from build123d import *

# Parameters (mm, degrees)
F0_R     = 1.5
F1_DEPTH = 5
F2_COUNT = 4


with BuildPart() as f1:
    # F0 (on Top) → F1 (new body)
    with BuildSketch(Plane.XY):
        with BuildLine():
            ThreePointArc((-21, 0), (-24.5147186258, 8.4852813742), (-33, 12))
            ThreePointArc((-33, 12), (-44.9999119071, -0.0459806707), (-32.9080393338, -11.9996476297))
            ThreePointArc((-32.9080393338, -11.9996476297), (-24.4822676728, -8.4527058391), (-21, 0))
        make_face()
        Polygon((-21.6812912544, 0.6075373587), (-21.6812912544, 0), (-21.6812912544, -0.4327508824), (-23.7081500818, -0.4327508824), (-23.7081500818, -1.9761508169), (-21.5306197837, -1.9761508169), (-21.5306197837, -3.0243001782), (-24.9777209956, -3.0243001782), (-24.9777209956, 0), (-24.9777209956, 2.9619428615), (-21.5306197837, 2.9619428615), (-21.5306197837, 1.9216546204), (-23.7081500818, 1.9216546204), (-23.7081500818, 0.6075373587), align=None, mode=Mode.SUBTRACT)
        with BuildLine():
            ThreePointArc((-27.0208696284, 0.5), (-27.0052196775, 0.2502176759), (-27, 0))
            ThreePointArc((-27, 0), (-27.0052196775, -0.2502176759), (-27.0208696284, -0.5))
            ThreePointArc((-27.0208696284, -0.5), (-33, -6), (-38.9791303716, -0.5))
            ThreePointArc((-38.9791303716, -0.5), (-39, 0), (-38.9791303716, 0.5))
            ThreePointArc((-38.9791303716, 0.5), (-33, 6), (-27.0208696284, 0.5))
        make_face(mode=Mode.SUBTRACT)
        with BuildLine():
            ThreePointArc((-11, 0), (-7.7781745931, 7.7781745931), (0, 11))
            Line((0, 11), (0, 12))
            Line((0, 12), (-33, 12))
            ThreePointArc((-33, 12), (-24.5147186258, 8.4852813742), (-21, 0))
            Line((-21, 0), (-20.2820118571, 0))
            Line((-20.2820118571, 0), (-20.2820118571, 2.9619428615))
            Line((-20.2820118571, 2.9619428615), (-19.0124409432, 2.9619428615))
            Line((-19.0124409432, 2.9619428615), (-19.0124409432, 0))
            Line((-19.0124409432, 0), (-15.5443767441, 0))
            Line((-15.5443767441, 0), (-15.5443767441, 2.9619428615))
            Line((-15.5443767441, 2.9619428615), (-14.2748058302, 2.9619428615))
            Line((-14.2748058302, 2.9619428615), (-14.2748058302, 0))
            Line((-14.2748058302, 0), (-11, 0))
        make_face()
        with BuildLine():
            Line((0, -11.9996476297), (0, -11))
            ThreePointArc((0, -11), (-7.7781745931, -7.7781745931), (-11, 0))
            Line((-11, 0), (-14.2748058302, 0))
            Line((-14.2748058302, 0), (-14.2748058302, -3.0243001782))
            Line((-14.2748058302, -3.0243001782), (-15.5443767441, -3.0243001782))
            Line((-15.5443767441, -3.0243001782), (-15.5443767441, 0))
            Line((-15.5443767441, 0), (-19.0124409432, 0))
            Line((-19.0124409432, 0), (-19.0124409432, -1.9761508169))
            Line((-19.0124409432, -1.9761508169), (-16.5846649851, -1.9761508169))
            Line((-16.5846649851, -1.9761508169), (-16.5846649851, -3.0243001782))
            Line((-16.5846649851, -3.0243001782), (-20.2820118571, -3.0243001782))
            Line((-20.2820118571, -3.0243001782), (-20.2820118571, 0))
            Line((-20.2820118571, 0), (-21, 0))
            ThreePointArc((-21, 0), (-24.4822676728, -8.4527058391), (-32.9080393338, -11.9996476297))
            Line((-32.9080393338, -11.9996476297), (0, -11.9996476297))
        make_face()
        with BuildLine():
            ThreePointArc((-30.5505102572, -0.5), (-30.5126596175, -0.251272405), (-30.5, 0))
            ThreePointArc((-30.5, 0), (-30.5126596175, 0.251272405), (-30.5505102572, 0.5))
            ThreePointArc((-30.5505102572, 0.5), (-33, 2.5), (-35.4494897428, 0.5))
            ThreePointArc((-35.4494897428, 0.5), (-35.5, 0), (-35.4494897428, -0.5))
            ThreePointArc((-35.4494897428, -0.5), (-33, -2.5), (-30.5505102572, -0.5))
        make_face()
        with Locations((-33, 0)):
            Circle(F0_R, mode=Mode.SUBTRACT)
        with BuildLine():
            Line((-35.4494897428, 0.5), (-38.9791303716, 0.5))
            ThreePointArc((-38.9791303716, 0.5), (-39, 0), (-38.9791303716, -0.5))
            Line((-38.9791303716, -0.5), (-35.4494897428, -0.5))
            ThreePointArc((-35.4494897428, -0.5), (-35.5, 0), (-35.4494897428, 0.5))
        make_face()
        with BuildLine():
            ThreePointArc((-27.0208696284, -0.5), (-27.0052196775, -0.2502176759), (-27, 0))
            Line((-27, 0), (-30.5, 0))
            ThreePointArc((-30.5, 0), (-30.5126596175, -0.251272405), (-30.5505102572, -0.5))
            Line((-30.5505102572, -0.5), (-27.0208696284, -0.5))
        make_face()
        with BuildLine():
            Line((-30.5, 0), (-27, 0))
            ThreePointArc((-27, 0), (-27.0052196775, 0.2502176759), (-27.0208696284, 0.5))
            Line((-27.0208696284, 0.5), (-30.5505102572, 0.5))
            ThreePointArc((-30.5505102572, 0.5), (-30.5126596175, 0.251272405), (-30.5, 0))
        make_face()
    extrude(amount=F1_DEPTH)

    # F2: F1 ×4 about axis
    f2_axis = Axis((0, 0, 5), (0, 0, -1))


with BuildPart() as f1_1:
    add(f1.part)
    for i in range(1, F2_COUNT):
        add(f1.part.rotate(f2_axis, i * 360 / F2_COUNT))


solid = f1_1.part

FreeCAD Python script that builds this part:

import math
import FreeCAD as App
import Part
import Sketcher
from FreeCAD import Vector
Q = App.Units.Quantity


def add_polygon(sketch, points):
    """Adds a closed chain of lines whose ends are joined by coincident constraints."""
    first, n = sketch.GeometryCount, len(points)
    for a, b in zip(points, points[1:] + points[:1]):
        sketch.addGeometry(Part.LineSegment(App.Vector(*a, 0), App.Vector(*b, 0)), False)
    for i in range(n):
        sketch.addConstraint(Sketcher.Constraint("Coincident", first + i, 2, first + (i + 1) % n, 1))

doc = App.newDocument("Part")
params = doc.addObject("Spreadsheet::Sheet", "Params")
for row, (alias, value) in enumerate([
    ("sketch1_diameter", "3 mm"),
    ("sketch1_radius", "11 mm"),
    ("sketch1_radius2", "12 mm"),
    ("sketch1_radius3", "6 mm"),
    ("sketch1_radius4", "2.5 mm"),
    ("pad1_length", "5 mm"),
], start=1):
    params.set(f"A{row}", alias)
    params.set(f"B{row}", "=" + value)
    params.setAlias(f"B{row}", alias)

body = doc.addObject("PartDesign::Body", "Body")

sketch1 = doc.addObject("Sketcher::SketchObject", "Sketch")
body.addObject(sketch1)
sketch1.AttachmentSupport = (doc.XY_Plane, [""])
sketch1.MapMode = "FlatFace"
sketch1.addGeometry(Part.ArcOfCircle(Part.Circle(Vector(0, 0, 0), Vector(0, 0, 1), 11), math.radians(90), math.radians(180)), False)
sketch1.addGeometry(Part.LineSegment(Vector(0, 11, 0), Vector(0, 12, 0)), False)
sketch1.addGeometry(Part.LineSegment(Vector(0, 12, 0), Vector(-33, 12, 0)), False)
sketch1.addGeometry(Part.ArcOfCircle(Part.Circle(Vector(-33, 0, 0), Vector(0, 0, 1), 12), math.radians(90), math.radians(270)), False)
sketch1.addGeometry(Part.LineSegment(Vector(-32.9, -12, 0), Vector(0, -12, 0)), False)
sketch1.addGeometry(Part.LineSegment(Vector(0, -12, 0), Vector(0, -11, 0)), False)
sketch1.addGeometry(Part.ArcOfCircle(Part.Circle(Vector(0, 0, 0), Vector(0, 0, 1), 11), math.radians(180), math.radians(270)), False)
add_polygon(sketch1, [(-20.3, 3), (-19, 3), (-19, -2), (-16.6, -2), (-16.6, -3), (-20.3, -3)])
add_polygon(sketch1, [(-15.5, 3), (-14.3, 3), (-14.3, -3), (-15.5, -3)])
add_polygon(sketch1, [(-23.7, 0.6), (-21.7, 0.6), (-21.7, -0.4), (-23.7, -0.4), (-23.7, -2), (-21.5, -2), (-21.5, -3), (-25, -3), (-25, 3), (-21.5, 3), (-21.5, 1.9), (-23.7, 1.9)])
sketch1.addGeometry(Part.ArcOfCircle(Part.Circle(Vector(-33, 0, 0), Vector(0, 0, 1), 6), math.radians(5), math.radians(175)), False)
sketch1.addGeometry(Part.LineSegment(Vector(-27, 0.5, 0), Vector(-30.6, 0.5, 0)), False)
sketch1.addGeometry(Part.ArcOfCircle(Part.Circle(Vector(-33, 0, 0), Vector(0, 0, 1), 2.5), math.radians(12), math.radians(168)), False)
sketch1.addGeometry(Part.LineSegment(Vector(-35.4, 0.5, 0), Vector(-39, 0.5, 0)), False)
sketch1.addGeometry(Part.ArcOfCircle(Part.Circle(Vector(-33, 0, 0), Vector(0, 0, 1), 6), math.radians(-175), math.radians(-5)), False)
sketch1.addGeometry(Part.LineSegment(Vector(-39, -0.5, 0), Vector(-35.4, -0.5, 0)), False)
sketch1.addGeometry(Part.ArcOfCircle(Part.Circle(Vector(-33, 0, 0), Vector(0, 0, 1), 2.5), math.radians(-168), math.radians(-12)), False)
sketch1.addGeometry(Part.LineSegment(Vector(-30.6, -0.5, 0), Vector(-27, -0.5, 0)), False)
sketch1.addGeometry(Part.Circle(Vector(-33, 0, 0), Vector(0, 0, 1), 1.5), False)
sketch1.addConstraint(Sketcher.Constraint("Coincident", 0, 1, 1, 1))
sketch1.addConstraint(Sketcher.Constraint("Coincident", 1, 2, 2, 1))
sketch1.addConstraint(Sketcher.Constraint("Tangent", 2, 2, 3, 1))
sketch1.addConstraint(Sketcher.Constraint("Coincident", 3, 2, 4, 1))
sketch1.addConstraint(Sketcher.Constraint("Coincident", 4, 2, 5, 1))
sketch1.addConstraint(Sketcher.Constraint("Coincident", 5, 2, 6, 2))
sketch1.addConstraint(Sketcher.Constraint("Tangent", 6, 1, 0, 2))
sketch1.addConstraint(Sketcher.Constraint("Coincident", 29, 1, 30, 1))
sketch1.addConstraint(Sketcher.Constraint("Coincident", 30, 2, 31, 1))
sketch1.addConstraint(Sketcher.Constraint("Coincident", 31, 2, 32, 1))
sketch1.addConstraint(Sketcher.Constraint("Coincident", 32, 2, 29, 2))
sketch1.addConstraint(Sketcher.Constraint("Coincident", 33, 1, 34, 1))
sketch1.addConstraint(Sketcher.Constraint("Coincident", 34, 2, 35, 1))
sketch1.addConstraint(Sketcher.Constraint("Coincident", 35, 2, 36, 1))
sketch1.addConstraint(Sketcher.Constraint("Coincident", 36, 2, 33, 2))
sketch1.addConstraint(Sketcher.Constraint("Vertical", 1))
sketch1.addConstraint(Sketcher.Constraint("Horizontal", 2))
sketch1.addConstraint(Sketcher.Constraint("Horizontal", 4))
sketch1.addConstraint(Sketcher.Constraint("Vertical", 5))
sketch1.addConstraint(Sketcher.Constraint("Horizontal", 7))
sketch1.addConstraint(Sketcher.Constraint("Vertical", 8))
sketch1.addConstraint(Sketcher.Constraint("Horizontal", 9))
sketch1.addConstraint(Sketcher.Constraint("Vertical", 10))
sketch1.addConstraint(Sketcher.Constraint("Horizontal", 11))
sketch1.addConstraint(Sketcher.Constraint("Vertical", 12))
sketch1.addConstraint(Sketcher.Constraint("Horizontal", 13))
sketch1.addConstraint(Sketcher.Constraint("Vertical", 14))
sketch1.addConstraint(Sketcher.Constraint("Horizontal", 15))
sketch1.addConstraint(Sketcher.Constraint("Vertical", 16))
sketch1.addConstraint(Sketcher.Constraint("Horizontal", 17))
sketch1.addConstraint(Sketcher.Constraint("Vertical", 18))
sketch1.addConstraint(Sketcher.Constraint("Horizontal", 19))
sketch1.addConstraint(Sketcher.Constraint("Vertical", 20))
sketch1.addConstraint(Sketcher.Constraint("Horizontal", 21))
sketch1.addConstraint(Sketcher.Constraint("Vertical", 22))
sketch1.addConstraint(Sketcher.Constraint("Horizontal", 23))
sketch1.addConstraint(Sketcher.Constraint("Vertical", 24))
sketch1.addConstraint(Sketcher.Constraint("Horizontal", 25))
sketch1.addConstraint(Sketcher.Constraint("Vertical", 26))
sketch1.addConstraint(Sketcher.Constraint("Horizontal", 27))
sketch1.addConstraint(Sketcher.Constraint("Vertical", 28))
sketch1.addConstraint(Sketcher.Constraint("Horizontal", 30))
sketch1.addConstraint(Sketcher.Constraint("Horizontal", 32))
sketch1.addConstraint(Sketcher.Constraint("Horizontal", 34))
sketch1.addConstraint(Sketcher.Constraint("Horizontal", 36))
sketch1.addConstraint(Sketcher.Constraint("Coincident", 0, 3, -1, 1))
sketch1.addConstraint(Sketcher.Constraint("Coincident", 29, 3, 3, 3))
sketch1.addConstraint(Sketcher.Constraint("Coincident", 31, 3, 3, 3))
sketch1.addConstraint(Sketcher.Constraint("Coincident", 33, 3, 3, 3))
sketch1.addConstraint(Sketcher.Constraint("Coincident", 35, 3, 3, 3))
sketch1.addConstraint(Sketcher.Constraint("Coincident", 37, 3, 3, 3))
sketch1.addConstraint(Sketcher.Constraint("Equal", 0, 6))
sketch1.addConstraint(Sketcher.Constraint("Equal", 29, 33))
sketch1.addConstraint(Sketcher.Constraint("Equal", 31, 35))
sketch1.addConstraint(Sketcher.Constraint("Symmetric", 32, 2, 33, 1, -1))
sketch1.addConstraint(Sketcher.Constraint("PointOnObject", 0, 1, -2))
sketch1.addConstraint(Sketcher.Constraint("PointOnObject", 4, 2, -2))
sketch1.addConstraint(Sketcher.Constraint("PointOnObject", 6, 1, -1))
sketch1.addConstraint(Sketcher.Constraint("Horizontal", 12, 2, 13, 2))
sketch1.addConstraint(Sketcher.Constraint("Horizontal", 11, 2, 14, 2))
sketch1.addConstraint(Sketcher.Constraint("Horizontal", 9, 2, 20, 2))
sketch1.addConstraint(Sketcher.Constraint("Horizontal", 15, 2, 22, 2))
sketch1.addConstraint(Sketcher.Constraint("Horizontal", 16, 2, 24, 2))
sketch1.addConstraint(Sketcher.Constraint("Horizontal", 30, 2, 31, 2))
sketch1.addConstraint(Sketcher.Constraint("Horizontal", 34, 2, 35, 2))
sketch1.addConstraint(Sketcher.Constraint("Vertical", 22, 2, 25, 2))
sketch1.addConstraint(Sketcher.Constraint("Vertical", 20, 2, 27, 2))
sketch1.addConstraint(Sketcher.Constraint("Equal", 7, 13))
sketch1.addConstraint(Sketcher.Constraint("Equal", 18, 26))
sketch1.addConstraint(Sketcher.Constraint("Diameter", 37, Q("3 mm")))
sketch1.addConstraint(Sketcher.Constraint("Radius", 0, Q("11 mm")))
sketch1.addConstraint(Sketcher.Constraint("Radius", 3, Q("12 mm")))
sketch1.addConstraint(Sketcher.Constraint("Radius", 29, Q("6 mm")))
sketch1.addConstraint(Sketcher.Constraint("Radius", 31, Q("2.5 mm")))
sketch1.addConstraint(Sketcher.Constraint("DistanceX", 2, 2, 2, 1, Q("33 mm")))
sketch1.addConstraint(Sketcher.Constraint("DistanceY", 33, 1, 32, 2, Q("1 mm")))
sketch1.addConstraint(Sketcher.Constraint("DistanceX", 23, 2, 23, 1, Q("3.447101 mm")))
sketch1.addConstraint(Sketcher.Constraint("DistanceY", 20, 2, 20, 1, Q("1.5434 mm")))
sketch1.addConstraint(Sketcher.Constraint("DistanceX", 4, 1, 4, 2, Q("32.908039 mm")))
sketch1.addConstraint(Sketcher.Constraint("DistanceX", 7, 1, 7, 2, Q("1.269571 mm")))
sketch1.addConstraint(Sketcher.Constraint("DistanceX", 17, 1, 17, 2, Q("2.026859 mm")))
sketch1.addConstraint(Sketcher.Constraint("DistanceX", 21, 1, 21, 2, Q("2.17753 mm")))
sketch1.addConstraint(Sketcher.Constraint("DistanceY", 10, 2, 10, 1, Q("1.048149 mm")))
sketch1.addConstraint(Sketcher.Constraint("DistanceY", 18, 2, 18, 1, Q("1.040288 mm")))
sketch1.addConstraint(Sketcher.Constraint("DistanceY", 10, 2, -1, 1, Q("3.0243 mm")))
sketch1.addConstraint(Sketcher.Constraint("DistanceX", 9, 1, 9, 2, Q("2.427776 mm")))
sketch1.addConstraint(Sketcher.Constraint("DistanceY", 8, 2, 8, 1, Q("4.938094 mm")))
sketch1.addConstraint(Sketcher.Constraint("DistanceX", 7, 2, -1, 1, Q("19.012441 mm")))
sketch1.addConstraint(Sketcher.Constraint("DistanceX", 17, 2, -1, 1, Q("21.681291 mm")))
sketch1.addConstraint(Sketcher.Constraint("DistanceX", 9, 2, 13, 2, Q("2.309859 mm")))
sketch1.setExpression("Constraints[91]", "Params.sketch1_diameter")
sketch1.setExpression("Constraints[92]", "Params.sketch1_radius")
sketch1.setExpression("Constraints[93]", "Params.sketch1_radius2")
sketch1.setExpression("Constraints[94]", "Params.sketch1_radius3")
sketch1.setExpression("Constraints[95]", "Params.sketch1_radius4")
pad1 = doc.addObject("PartDesign::Pad", "Pad")
body.addObject(pad1)
pad1.Profile = sketch1
pad1.setExpression("Length", "Params.pad1_length")
body2 = doc.addObject("PartDesign::Body", "Body001")
doc.recompute()

body2.BaseFeature = body
doc.recompute()

body3 = doc.addObject("PartDesign::Body", "Body002")
body3.BaseFeature = body
body3.Placement = App.Placement(Vector(0, 0, 0), App.Rotation(Vector(0, 0, -1), 90))
boolean = doc.addObject("PartDesign::Boolean", "Boolean")
body2.addObject(boolean)
boolean.Type = "Fuse"
boolean.addObjects([body3])
doc.recompute()

body4 = doc.addObject("PartDesign::Body", "Body003")
body4.BaseFeature = body
body4.Placement = App.Placement(Vector(0, 0, 0), App.Rotation(Vector(0, 0, -1), 180))
boolean2 = doc.addObject("PartDesign::Boolean", "Boolean001")
body2.addObject(boolean2)
boolean2.Type = "Fuse"
boolean2.addObjects([body4])
doc.recompute()

body.Placement = App.Placement(Vector(0, 0, 0), App.Rotation(Vector(0, 0, -1), 270))
boolean3 = doc.addObject("PartDesign::Boolean", "Boolean002")
body2.addObject(boolean3)
boolean3.Type = "Fuse"
boolean3.addObjects([body])

doc.recompute()
